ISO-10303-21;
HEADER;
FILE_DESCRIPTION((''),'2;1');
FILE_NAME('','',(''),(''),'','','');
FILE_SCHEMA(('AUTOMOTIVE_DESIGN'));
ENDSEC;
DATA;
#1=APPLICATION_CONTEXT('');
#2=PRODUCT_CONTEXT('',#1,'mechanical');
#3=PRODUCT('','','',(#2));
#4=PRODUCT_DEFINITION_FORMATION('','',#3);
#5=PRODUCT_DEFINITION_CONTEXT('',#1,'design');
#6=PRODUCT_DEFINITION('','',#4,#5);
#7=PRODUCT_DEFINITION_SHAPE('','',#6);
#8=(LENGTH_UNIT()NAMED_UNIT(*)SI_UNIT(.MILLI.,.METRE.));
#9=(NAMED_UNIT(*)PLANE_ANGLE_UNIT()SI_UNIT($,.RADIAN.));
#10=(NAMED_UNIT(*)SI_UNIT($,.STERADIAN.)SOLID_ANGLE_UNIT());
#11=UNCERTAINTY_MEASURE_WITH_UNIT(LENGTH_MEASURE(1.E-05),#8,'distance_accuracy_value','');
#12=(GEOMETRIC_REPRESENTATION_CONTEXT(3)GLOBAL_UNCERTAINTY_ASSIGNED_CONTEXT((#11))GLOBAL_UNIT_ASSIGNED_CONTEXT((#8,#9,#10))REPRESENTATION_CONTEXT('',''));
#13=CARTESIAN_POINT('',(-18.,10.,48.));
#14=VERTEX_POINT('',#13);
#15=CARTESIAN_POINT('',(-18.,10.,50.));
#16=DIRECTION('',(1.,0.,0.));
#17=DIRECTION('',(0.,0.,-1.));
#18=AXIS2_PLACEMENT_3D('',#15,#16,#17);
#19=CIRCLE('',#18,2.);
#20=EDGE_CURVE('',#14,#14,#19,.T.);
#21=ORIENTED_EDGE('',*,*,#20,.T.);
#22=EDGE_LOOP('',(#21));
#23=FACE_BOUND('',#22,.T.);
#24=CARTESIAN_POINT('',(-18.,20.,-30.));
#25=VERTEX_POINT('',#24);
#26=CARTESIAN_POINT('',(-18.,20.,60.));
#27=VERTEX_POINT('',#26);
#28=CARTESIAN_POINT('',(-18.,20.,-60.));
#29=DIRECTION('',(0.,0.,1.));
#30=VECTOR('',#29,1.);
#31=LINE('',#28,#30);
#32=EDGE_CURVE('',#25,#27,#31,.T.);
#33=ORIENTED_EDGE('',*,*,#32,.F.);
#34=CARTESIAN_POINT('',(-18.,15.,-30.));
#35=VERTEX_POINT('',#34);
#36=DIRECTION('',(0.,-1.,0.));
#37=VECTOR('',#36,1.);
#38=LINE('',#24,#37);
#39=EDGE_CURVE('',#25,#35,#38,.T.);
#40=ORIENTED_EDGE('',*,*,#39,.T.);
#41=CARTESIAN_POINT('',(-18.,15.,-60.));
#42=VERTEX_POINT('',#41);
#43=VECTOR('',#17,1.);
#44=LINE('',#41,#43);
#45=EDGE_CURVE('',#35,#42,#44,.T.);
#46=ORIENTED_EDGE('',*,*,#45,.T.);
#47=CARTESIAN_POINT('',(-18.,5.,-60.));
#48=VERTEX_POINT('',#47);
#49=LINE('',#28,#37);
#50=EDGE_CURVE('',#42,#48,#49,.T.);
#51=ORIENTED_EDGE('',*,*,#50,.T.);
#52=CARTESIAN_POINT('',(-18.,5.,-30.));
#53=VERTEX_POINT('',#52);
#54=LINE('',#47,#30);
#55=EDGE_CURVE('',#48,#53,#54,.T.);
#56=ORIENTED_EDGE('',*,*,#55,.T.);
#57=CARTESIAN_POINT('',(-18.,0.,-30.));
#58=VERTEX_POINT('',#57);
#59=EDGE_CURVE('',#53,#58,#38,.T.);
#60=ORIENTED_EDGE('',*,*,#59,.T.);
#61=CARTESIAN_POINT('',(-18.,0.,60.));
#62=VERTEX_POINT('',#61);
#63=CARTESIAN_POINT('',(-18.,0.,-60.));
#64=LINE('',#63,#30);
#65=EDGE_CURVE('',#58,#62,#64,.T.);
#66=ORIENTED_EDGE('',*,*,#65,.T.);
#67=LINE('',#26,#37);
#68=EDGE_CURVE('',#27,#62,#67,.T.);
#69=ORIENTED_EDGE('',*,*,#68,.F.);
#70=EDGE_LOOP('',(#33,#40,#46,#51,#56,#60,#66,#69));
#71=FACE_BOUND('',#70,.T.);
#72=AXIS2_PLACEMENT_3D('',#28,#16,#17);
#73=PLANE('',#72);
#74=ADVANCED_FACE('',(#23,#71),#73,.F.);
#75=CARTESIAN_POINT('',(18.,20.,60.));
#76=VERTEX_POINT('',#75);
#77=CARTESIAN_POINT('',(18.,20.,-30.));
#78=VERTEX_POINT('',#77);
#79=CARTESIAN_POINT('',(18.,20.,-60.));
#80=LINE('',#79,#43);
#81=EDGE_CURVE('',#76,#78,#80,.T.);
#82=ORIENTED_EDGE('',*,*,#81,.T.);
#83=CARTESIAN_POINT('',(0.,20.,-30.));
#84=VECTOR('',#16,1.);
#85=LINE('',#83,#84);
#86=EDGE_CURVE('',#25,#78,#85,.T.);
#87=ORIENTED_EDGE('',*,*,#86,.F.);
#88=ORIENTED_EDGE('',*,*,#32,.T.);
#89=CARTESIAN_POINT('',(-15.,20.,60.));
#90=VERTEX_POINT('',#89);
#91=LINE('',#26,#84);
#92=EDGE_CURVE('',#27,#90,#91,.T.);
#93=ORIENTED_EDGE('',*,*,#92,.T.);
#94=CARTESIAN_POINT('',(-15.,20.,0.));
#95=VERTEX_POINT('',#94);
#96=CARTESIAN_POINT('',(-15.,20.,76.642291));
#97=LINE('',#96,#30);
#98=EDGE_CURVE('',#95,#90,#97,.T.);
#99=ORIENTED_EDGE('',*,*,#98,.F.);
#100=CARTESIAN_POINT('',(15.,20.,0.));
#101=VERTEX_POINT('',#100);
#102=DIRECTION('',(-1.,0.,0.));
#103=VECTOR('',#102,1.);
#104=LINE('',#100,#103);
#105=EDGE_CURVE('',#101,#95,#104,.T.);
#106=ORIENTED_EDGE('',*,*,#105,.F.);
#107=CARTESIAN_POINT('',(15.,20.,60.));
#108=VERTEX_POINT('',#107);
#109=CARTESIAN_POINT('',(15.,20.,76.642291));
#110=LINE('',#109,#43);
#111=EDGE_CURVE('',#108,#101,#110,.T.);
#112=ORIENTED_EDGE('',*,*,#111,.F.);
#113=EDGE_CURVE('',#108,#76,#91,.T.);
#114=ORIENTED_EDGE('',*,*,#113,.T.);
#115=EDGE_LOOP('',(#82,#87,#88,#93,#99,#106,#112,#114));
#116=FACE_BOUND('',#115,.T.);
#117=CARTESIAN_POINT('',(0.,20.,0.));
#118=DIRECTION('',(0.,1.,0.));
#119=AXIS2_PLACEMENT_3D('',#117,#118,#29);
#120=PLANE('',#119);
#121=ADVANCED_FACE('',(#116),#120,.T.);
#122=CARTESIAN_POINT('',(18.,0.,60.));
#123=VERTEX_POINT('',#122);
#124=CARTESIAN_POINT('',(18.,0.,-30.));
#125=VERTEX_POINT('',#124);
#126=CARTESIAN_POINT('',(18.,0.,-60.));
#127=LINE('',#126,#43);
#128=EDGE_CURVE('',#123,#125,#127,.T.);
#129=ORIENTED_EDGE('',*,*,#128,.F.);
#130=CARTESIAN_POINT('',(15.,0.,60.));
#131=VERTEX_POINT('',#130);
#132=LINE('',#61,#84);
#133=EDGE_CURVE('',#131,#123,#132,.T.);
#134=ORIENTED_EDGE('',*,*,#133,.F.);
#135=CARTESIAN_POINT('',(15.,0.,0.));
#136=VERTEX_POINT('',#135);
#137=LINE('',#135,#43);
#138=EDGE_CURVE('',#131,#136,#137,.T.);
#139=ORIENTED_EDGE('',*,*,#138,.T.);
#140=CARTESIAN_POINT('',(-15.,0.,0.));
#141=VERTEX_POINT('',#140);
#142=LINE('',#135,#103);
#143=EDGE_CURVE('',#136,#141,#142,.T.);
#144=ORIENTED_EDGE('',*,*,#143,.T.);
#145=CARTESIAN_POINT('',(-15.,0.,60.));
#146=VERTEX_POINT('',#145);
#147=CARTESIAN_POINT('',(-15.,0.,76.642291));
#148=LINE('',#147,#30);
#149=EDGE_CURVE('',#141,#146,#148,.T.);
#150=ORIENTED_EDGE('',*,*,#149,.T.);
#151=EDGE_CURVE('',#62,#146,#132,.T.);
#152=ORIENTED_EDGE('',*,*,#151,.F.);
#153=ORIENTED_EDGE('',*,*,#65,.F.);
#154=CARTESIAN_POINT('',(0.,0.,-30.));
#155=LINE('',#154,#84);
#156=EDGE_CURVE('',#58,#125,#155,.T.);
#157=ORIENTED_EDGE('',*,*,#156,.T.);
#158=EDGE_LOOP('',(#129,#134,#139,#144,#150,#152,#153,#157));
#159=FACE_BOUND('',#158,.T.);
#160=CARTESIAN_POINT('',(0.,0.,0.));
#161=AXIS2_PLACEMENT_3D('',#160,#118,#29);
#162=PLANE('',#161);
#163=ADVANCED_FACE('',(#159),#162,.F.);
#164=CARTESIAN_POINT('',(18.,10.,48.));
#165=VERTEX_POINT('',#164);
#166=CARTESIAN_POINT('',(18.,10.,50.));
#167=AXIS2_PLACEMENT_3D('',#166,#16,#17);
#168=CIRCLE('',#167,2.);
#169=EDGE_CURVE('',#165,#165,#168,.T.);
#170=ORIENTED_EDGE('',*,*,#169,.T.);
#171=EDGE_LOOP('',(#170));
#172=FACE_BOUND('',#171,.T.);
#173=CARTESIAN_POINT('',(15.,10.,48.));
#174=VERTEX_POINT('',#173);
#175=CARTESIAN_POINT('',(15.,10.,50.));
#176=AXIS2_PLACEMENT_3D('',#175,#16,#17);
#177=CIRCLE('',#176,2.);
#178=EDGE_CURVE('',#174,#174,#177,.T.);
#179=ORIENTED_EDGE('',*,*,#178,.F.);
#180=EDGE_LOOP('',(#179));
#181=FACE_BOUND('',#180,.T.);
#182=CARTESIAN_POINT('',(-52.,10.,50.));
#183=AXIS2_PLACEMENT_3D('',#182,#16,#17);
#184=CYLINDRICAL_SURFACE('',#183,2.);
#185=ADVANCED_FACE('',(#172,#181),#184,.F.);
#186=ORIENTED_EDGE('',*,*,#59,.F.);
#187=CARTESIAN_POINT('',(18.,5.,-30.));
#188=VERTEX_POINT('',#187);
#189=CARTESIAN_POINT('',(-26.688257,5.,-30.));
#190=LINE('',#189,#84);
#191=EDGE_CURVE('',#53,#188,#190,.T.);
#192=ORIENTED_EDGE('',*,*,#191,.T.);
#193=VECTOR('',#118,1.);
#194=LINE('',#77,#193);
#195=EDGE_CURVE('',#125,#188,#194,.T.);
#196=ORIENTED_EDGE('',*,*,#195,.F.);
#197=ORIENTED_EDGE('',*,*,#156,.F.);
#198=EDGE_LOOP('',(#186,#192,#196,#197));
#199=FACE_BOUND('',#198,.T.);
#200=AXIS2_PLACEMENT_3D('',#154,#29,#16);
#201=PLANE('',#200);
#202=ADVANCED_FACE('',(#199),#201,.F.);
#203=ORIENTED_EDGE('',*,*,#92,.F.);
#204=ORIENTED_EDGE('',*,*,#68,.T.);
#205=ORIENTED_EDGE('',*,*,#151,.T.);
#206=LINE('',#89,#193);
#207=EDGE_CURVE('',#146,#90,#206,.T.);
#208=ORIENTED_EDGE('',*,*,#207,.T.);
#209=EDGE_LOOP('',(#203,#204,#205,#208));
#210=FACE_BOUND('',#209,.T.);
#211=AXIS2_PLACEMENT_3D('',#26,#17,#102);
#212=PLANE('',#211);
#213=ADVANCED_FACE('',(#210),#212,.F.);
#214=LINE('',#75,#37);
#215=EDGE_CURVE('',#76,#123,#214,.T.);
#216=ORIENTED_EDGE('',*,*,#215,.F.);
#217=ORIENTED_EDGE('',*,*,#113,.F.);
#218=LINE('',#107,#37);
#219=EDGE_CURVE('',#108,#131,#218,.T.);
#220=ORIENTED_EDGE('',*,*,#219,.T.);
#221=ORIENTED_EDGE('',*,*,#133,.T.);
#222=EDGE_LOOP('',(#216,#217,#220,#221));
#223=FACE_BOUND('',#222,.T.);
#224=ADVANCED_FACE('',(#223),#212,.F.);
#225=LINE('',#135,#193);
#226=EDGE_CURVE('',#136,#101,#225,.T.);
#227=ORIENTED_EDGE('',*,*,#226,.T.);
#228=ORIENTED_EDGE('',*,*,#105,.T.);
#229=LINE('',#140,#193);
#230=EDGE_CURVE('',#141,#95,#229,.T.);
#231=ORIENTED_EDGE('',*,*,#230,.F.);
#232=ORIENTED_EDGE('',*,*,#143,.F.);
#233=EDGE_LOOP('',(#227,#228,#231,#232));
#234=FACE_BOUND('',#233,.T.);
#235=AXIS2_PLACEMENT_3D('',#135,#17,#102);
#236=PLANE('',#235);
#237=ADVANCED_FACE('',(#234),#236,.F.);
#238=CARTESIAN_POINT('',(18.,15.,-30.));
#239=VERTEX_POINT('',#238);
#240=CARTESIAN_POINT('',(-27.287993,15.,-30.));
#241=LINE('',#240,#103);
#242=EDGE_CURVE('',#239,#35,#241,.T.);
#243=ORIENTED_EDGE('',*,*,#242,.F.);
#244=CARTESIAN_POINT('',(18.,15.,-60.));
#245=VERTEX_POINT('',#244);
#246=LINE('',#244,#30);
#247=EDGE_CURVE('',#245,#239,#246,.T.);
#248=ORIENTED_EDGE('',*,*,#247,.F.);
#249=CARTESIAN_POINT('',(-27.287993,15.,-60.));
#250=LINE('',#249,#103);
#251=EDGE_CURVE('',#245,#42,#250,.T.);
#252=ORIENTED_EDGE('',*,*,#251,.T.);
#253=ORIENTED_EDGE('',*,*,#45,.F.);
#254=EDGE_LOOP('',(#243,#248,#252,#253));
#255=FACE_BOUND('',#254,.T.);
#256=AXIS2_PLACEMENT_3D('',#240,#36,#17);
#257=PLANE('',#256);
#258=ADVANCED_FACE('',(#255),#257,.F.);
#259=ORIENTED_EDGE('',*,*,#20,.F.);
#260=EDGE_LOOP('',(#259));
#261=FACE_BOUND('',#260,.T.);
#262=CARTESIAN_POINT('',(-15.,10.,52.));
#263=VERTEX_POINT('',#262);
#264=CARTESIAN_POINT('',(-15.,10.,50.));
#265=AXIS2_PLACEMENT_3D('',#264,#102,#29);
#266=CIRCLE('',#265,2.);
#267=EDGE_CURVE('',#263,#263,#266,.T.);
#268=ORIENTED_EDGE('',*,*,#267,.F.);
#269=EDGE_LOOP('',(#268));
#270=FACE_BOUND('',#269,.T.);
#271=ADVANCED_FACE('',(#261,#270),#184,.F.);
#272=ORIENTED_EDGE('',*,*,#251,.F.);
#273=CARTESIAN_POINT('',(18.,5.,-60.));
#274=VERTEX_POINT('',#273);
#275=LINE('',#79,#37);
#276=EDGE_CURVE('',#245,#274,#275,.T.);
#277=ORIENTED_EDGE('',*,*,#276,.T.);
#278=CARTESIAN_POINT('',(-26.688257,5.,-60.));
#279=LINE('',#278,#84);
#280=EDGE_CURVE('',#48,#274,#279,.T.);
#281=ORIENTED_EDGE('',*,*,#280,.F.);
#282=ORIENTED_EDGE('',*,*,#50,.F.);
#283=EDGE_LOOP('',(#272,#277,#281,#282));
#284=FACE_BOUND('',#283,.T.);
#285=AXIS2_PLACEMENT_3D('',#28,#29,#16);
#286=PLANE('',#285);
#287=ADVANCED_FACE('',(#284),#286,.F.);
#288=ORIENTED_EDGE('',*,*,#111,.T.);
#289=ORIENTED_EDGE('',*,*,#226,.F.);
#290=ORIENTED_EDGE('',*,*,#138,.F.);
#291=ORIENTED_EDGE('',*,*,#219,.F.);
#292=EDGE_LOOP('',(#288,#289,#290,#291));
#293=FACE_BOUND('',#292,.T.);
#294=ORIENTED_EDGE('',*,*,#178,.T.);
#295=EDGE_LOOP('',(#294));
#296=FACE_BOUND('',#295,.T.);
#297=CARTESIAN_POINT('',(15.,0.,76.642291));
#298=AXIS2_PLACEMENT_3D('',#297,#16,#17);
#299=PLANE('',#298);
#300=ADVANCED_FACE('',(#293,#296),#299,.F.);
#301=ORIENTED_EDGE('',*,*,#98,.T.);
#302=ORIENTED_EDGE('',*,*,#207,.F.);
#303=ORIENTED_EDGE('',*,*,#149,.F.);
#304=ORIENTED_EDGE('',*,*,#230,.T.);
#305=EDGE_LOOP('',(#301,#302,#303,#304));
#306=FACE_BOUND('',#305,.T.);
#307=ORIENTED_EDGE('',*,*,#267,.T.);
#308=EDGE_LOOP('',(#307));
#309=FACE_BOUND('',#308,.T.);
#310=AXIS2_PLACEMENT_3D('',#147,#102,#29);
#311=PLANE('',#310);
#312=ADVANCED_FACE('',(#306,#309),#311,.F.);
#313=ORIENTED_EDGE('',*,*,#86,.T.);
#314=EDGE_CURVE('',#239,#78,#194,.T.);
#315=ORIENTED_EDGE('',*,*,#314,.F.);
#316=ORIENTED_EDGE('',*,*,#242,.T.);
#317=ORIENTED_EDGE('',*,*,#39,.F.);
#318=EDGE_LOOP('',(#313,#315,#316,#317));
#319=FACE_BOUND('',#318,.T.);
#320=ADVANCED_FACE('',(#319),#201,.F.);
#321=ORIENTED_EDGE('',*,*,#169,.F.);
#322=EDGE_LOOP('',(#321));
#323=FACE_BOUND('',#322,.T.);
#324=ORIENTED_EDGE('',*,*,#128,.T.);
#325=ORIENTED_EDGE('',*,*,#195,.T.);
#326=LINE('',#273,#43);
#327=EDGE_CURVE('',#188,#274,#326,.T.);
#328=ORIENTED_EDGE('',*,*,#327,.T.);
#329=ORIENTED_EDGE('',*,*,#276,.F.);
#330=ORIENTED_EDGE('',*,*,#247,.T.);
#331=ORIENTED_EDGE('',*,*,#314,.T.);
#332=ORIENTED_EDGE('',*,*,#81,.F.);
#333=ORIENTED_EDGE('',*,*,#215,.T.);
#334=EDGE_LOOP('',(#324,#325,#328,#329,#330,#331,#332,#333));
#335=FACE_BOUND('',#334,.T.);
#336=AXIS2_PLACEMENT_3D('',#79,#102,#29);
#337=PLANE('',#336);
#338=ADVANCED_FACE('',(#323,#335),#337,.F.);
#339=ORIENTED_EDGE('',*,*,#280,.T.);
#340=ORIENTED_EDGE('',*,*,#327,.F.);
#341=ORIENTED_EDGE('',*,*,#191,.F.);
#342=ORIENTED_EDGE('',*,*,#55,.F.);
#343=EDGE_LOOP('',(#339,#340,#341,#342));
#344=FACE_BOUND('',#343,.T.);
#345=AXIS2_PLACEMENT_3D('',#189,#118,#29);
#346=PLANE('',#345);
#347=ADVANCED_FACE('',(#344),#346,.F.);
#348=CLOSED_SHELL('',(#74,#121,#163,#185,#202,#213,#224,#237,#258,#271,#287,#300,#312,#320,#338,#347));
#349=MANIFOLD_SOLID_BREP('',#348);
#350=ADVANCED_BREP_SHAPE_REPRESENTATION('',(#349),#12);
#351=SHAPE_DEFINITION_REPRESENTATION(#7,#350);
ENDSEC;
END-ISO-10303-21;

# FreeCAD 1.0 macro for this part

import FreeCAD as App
import Part
import Sketcher

doc = App.newDocument("Part")
body = doc.addObject("PartDesign::Body", "Body")

# Sketch on XZ plane
sketch1 = body.newObject("Sketcher::SketchObject", "Sketch")
sketch1.AttachmentSupport = (doc.getObject("XZ_Plane"), [""])
sketch1.MapMode = "FlatFace"
sketch1.addGeometry(Part.LineSegment(App.Vector(-18, -60, 0), App.Vector(-18, 60, 0)), False)
sketch1.addGeometry(Part.LineSegment(App.Vector(-18, 60, 0), App.Vector(18, 60, 0)), False)
sketch1.addGeometry(Part.LineSegment(App.Vector(18, 60, 0), App.Vector(18, -60, 0)), False)
sketch1.addGeometry(Part.LineSegment(App.Vector(18, -60, 0), App.Vector(-18, -60, 0)), False)
sketch1.addConstraint(Sketcher.Constraint("Coincident", 0, 2, 1, 1))
sketch1.addConstraint(Sketcher.Constraint("Coincident", 1, 2, 2, 1))
sketch1.addConstraint(Sketcher.Constraint("Coincident", 2, 2, 3, 1))
sketch1.addConstraint(Sketcher.Constraint("Coincident", 3, 2, 0, 1))
sketch1.addConstraint(Sketcher.Constraint("Vertical", 0))
sketch1.addConstraint(Sketcher.Constraint("Horizontal", 1))
sketch1.addConstraint(Sketcher.Constraint("Vertical", 2))
sketch1.addConstraint(Sketcher.Constraint("Horizontal", 3))
sketch1.addConstraint(Sketcher.Constraint("Symmetric", 0, 2, 2, 2, -1, 1))
sketch1.addConstraint(Sketcher.Constraint("DistanceX", 1, 1, 1, 2, 36.0))
sketch1.addConstraint(Sketcher.Constraint("DistanceY", 0, 1, 0, 2, 120.0))
pad1 = body.newObject("PartDesign::Pad", "Pad")
pad1.Profile = sketch1
pad1.Length = 20
pad1.Reversed = True

# Sketch on XZ plane
sketch2 = body.newObject("Sketcher::SketchObject", "Sketch001")
sketch2.AttachmentSupport = (doc.getObject("XZ_Plane"), [""])
sketch2.MapMode = "FlatFace"
sketch2.AttachmentOffset = App.Placement(App.Vector(0, 0, -20), App.Rotation())
sketch2.addGeometry(Part.LineSegment(App.Vector(-15, 0, 0), App.Vector(-15, 77, 0)), False)
sketch2.addGeometry(Part.LineSegment(App.Vector(-15, 77, 0), App.Vector(15, 77, 0)), False)
sketch2.addGeometry(Part.LineSegment(App.Vector(15, 77, 0), App.Vector(15, 0, 0)), False)
sketch2.addGeometry(Part.LineSegment(App.Vector(15, 0, 0), App.Vector(-15, 0, 0)), False)
sketch2.addConstraint(Sketcher.Constraint("Coincident", 0, 2, 1, 1))
sketch2.addConstraint(Sketcher.Constraint("Coincident", 1, 2, 2, 1))
sketch2.addConstraint(Sketcher.Constraint("Coincident", 2, 2, 3, 1))
sketch2.addConstraint(Sketcher.Constraint("Coincident", 3, 2, 0, 1))
sketch2.addConstraint(Sketcher.Constraint("Vertical", 0))
sketch2.addConstraint(Sketcher.Constraint("Horizontal", 1))
sketch2.addConstraint(Sketcher.Constraint("Vertical", 2))
sketch2.addConstraint(Sketcher.Constraint("Horizontal", 3))
sketch2.addConstraint(Sketcher.Constraint("Symmetric", 2, 2, 3, 2, -1, 1))
sketch2.addConstraint(Sketcher.Constraint("DistanceX", 1, 1, 1, 2, 30.0))
sketch2.addConstraint(Sketcher.Constraint("DistanceY", 0, 1, 0, 2, 76.642291))
pocket1 = body.newObject("PartDesign::Pocket", "Pocket")
pocket1.Profile = sketch2
pocket1.Length = 20
pocket1.Reversed = True

# Sketch on XY plane
sketch3 = body.newObject("Sketcher::SketchObject", "Sketch002")
sketch3.AttachmentSupport = (doc.getObject("XY_Plane"), [""])
sketch3.MapMode = "FlatFace"
sketch3.AttachmentOffset = App.Placement(App.Vector(0, 0, -60), App.Rotation())
sketch3.addGeometry(Part.LineSegment(App.Vector(27, 5, 0), App.Vector(27, -13, 0)), False)
sketch3.addGeometry(Part.LineSegment(App.Vector(27, -13, 0), App.Vector(-27, -13, 0)), False)
sketch3.addGeometry(Part.LineSegment(App.Vector(-27, -13, 0), App.Vector(-27, 5, 0)), False)
sketch3.addGeometry(Part.LineSegment(App.Vector(-27, 5, 0), App.Vector(27, 5, 0)), False)
sketch3.addGeometry(Part.LineSegment(App.Vector(27, 26, 0), App.Vector(27, 15, 0)), False)
sketch3.addGeometry(Part.LineSegment(App.Vector(27, 15, 0), App.Vector(-27, 15, 0)), False)
sketch3.addGeometry(Part.LineSegment(App.Vector(-27, 15, 0), App.Vector(-27, 26, 0)), False)
sketch3.addGeometry(Part.LineSegment(App.Vector(-27, 26, 0), App.Vector(27, 26, 0)), False)
sketch3.addConstraint(Sketcher.Constraint("Coincident", 0, 2, 1, 1))
sketch3.addConstraint(Sketcher.Constraint("Coincident", 1, 2, 2, 1))
sketch3.addConstraint(Sketcher.Constraint("Coincident", 2, 2, 3, 1))
sketch3.addConstraint(Sketcher.Constraint("Coincident", 3, 2, 0, 1))
sketch3.addConstraint(Sketcher.Constraint("Coincident", 4, 2, 5, 1))
sketch3.addConstraint(Sketcher.Constraint("Coincident", 5, 2, 6, 1))
sketch3.addConstraint(Sketcher.Constraint("Coincident", 6, 2, 7, 1))
sketch3.addConstraint(Sketcher.Constraint("Coincident", 7, 2, 4, 1))
sketch3.addConstraint(Sketcher.Constraint("Vertical", 0))
sketch3.addConstraint(Sketcher.Constraint("Horizontal", 1))
sketch3.addConstraint(Sketcher.Constraint("Vertical", 2))
sketch3.addConstraint(Sketcher.Constraint("Horizontal", 3))
sketch3.addConstraint(Sketcher.Constraint("Vertical", 4))
sketch3.addConstraint(Sketcher.Constraint("Horizontal", 5))
sketch3.addConstraint(Sketcher.Constraint("Vertical", 6))
sketch3.addConstraint(Sketcher.Constraint("Horizontal", 7))
sketch3.addConstraint(Sketcher.Constraint("DistanceY", -1, 1, 2, 2, 5.0))
sketch3.addConstraint(Sketcher.Constraint("DistanceY", -1, 1, 4, 2, 15.0))
sketch3.addConstraint(Sketcher.Constraint("DistanceX", 1, 2, 1, 1, 53.751349))
sketch3.addConstraint(Sketcher.Constraint("DistanceY", 0, 2, 0, 1, 17.737071))
sketch3.addConstraint(Sketcher.Constraint("DistanceX", 5, 2, 5, 1, 54.426053))
sketch3.addConstraint(Sketcher.Constraint("DistanceY", 4, 2, 4, 1, 11.321535))
sketch3.addConstraint(Sketcher.Constraint("DistanceX", -1, 1, 4, 2, 27.138059))
sketch3.addConstraint(Sketcher.Constraint("DistanceX", -1, 1, 0, 2, 27.063092))
pocket2 = body.newObject("PartDesign::Pocket", "Pocket001")
pocket2.Profile = sketch3
pocket2.Length = 30
pocket2.Reversed = True

# Sketch on YZ plane
sketch4 = body.newObject("Sketcher::SketchObject", "Sketch003")
sketch4.AttachmentSupport = (doc.getObject("YZ_Plane"), [""])
sketch4.MapMode = "FlatFace"
sketch4.AttachmentOffset = App.Placement(App.Vector(0, 0, 18), App.Rotation())
sketch4.addGeometry(Part.Circle(App.Vector(10, 50, 0), App.Vector(0, 0, 1), 2), False)
sketch4.addConstraint(Sketcher.Constraint("Diameter", 0, 4.0))
sketch4.addConstraint(Sketcher.Constraint("DistanceX", -1, 1, 0, 3, 10.0))
sketch4.addConstraint(Sketcher.Constraint("DistanceY", -1, 1, 0, 3, 50.0))
pocket3 = body.newObject("PartDesign::Pocket", "Pocket002")
pocket3.Profile = sketch4
pocket3.Length = 70

doc.recompute()
